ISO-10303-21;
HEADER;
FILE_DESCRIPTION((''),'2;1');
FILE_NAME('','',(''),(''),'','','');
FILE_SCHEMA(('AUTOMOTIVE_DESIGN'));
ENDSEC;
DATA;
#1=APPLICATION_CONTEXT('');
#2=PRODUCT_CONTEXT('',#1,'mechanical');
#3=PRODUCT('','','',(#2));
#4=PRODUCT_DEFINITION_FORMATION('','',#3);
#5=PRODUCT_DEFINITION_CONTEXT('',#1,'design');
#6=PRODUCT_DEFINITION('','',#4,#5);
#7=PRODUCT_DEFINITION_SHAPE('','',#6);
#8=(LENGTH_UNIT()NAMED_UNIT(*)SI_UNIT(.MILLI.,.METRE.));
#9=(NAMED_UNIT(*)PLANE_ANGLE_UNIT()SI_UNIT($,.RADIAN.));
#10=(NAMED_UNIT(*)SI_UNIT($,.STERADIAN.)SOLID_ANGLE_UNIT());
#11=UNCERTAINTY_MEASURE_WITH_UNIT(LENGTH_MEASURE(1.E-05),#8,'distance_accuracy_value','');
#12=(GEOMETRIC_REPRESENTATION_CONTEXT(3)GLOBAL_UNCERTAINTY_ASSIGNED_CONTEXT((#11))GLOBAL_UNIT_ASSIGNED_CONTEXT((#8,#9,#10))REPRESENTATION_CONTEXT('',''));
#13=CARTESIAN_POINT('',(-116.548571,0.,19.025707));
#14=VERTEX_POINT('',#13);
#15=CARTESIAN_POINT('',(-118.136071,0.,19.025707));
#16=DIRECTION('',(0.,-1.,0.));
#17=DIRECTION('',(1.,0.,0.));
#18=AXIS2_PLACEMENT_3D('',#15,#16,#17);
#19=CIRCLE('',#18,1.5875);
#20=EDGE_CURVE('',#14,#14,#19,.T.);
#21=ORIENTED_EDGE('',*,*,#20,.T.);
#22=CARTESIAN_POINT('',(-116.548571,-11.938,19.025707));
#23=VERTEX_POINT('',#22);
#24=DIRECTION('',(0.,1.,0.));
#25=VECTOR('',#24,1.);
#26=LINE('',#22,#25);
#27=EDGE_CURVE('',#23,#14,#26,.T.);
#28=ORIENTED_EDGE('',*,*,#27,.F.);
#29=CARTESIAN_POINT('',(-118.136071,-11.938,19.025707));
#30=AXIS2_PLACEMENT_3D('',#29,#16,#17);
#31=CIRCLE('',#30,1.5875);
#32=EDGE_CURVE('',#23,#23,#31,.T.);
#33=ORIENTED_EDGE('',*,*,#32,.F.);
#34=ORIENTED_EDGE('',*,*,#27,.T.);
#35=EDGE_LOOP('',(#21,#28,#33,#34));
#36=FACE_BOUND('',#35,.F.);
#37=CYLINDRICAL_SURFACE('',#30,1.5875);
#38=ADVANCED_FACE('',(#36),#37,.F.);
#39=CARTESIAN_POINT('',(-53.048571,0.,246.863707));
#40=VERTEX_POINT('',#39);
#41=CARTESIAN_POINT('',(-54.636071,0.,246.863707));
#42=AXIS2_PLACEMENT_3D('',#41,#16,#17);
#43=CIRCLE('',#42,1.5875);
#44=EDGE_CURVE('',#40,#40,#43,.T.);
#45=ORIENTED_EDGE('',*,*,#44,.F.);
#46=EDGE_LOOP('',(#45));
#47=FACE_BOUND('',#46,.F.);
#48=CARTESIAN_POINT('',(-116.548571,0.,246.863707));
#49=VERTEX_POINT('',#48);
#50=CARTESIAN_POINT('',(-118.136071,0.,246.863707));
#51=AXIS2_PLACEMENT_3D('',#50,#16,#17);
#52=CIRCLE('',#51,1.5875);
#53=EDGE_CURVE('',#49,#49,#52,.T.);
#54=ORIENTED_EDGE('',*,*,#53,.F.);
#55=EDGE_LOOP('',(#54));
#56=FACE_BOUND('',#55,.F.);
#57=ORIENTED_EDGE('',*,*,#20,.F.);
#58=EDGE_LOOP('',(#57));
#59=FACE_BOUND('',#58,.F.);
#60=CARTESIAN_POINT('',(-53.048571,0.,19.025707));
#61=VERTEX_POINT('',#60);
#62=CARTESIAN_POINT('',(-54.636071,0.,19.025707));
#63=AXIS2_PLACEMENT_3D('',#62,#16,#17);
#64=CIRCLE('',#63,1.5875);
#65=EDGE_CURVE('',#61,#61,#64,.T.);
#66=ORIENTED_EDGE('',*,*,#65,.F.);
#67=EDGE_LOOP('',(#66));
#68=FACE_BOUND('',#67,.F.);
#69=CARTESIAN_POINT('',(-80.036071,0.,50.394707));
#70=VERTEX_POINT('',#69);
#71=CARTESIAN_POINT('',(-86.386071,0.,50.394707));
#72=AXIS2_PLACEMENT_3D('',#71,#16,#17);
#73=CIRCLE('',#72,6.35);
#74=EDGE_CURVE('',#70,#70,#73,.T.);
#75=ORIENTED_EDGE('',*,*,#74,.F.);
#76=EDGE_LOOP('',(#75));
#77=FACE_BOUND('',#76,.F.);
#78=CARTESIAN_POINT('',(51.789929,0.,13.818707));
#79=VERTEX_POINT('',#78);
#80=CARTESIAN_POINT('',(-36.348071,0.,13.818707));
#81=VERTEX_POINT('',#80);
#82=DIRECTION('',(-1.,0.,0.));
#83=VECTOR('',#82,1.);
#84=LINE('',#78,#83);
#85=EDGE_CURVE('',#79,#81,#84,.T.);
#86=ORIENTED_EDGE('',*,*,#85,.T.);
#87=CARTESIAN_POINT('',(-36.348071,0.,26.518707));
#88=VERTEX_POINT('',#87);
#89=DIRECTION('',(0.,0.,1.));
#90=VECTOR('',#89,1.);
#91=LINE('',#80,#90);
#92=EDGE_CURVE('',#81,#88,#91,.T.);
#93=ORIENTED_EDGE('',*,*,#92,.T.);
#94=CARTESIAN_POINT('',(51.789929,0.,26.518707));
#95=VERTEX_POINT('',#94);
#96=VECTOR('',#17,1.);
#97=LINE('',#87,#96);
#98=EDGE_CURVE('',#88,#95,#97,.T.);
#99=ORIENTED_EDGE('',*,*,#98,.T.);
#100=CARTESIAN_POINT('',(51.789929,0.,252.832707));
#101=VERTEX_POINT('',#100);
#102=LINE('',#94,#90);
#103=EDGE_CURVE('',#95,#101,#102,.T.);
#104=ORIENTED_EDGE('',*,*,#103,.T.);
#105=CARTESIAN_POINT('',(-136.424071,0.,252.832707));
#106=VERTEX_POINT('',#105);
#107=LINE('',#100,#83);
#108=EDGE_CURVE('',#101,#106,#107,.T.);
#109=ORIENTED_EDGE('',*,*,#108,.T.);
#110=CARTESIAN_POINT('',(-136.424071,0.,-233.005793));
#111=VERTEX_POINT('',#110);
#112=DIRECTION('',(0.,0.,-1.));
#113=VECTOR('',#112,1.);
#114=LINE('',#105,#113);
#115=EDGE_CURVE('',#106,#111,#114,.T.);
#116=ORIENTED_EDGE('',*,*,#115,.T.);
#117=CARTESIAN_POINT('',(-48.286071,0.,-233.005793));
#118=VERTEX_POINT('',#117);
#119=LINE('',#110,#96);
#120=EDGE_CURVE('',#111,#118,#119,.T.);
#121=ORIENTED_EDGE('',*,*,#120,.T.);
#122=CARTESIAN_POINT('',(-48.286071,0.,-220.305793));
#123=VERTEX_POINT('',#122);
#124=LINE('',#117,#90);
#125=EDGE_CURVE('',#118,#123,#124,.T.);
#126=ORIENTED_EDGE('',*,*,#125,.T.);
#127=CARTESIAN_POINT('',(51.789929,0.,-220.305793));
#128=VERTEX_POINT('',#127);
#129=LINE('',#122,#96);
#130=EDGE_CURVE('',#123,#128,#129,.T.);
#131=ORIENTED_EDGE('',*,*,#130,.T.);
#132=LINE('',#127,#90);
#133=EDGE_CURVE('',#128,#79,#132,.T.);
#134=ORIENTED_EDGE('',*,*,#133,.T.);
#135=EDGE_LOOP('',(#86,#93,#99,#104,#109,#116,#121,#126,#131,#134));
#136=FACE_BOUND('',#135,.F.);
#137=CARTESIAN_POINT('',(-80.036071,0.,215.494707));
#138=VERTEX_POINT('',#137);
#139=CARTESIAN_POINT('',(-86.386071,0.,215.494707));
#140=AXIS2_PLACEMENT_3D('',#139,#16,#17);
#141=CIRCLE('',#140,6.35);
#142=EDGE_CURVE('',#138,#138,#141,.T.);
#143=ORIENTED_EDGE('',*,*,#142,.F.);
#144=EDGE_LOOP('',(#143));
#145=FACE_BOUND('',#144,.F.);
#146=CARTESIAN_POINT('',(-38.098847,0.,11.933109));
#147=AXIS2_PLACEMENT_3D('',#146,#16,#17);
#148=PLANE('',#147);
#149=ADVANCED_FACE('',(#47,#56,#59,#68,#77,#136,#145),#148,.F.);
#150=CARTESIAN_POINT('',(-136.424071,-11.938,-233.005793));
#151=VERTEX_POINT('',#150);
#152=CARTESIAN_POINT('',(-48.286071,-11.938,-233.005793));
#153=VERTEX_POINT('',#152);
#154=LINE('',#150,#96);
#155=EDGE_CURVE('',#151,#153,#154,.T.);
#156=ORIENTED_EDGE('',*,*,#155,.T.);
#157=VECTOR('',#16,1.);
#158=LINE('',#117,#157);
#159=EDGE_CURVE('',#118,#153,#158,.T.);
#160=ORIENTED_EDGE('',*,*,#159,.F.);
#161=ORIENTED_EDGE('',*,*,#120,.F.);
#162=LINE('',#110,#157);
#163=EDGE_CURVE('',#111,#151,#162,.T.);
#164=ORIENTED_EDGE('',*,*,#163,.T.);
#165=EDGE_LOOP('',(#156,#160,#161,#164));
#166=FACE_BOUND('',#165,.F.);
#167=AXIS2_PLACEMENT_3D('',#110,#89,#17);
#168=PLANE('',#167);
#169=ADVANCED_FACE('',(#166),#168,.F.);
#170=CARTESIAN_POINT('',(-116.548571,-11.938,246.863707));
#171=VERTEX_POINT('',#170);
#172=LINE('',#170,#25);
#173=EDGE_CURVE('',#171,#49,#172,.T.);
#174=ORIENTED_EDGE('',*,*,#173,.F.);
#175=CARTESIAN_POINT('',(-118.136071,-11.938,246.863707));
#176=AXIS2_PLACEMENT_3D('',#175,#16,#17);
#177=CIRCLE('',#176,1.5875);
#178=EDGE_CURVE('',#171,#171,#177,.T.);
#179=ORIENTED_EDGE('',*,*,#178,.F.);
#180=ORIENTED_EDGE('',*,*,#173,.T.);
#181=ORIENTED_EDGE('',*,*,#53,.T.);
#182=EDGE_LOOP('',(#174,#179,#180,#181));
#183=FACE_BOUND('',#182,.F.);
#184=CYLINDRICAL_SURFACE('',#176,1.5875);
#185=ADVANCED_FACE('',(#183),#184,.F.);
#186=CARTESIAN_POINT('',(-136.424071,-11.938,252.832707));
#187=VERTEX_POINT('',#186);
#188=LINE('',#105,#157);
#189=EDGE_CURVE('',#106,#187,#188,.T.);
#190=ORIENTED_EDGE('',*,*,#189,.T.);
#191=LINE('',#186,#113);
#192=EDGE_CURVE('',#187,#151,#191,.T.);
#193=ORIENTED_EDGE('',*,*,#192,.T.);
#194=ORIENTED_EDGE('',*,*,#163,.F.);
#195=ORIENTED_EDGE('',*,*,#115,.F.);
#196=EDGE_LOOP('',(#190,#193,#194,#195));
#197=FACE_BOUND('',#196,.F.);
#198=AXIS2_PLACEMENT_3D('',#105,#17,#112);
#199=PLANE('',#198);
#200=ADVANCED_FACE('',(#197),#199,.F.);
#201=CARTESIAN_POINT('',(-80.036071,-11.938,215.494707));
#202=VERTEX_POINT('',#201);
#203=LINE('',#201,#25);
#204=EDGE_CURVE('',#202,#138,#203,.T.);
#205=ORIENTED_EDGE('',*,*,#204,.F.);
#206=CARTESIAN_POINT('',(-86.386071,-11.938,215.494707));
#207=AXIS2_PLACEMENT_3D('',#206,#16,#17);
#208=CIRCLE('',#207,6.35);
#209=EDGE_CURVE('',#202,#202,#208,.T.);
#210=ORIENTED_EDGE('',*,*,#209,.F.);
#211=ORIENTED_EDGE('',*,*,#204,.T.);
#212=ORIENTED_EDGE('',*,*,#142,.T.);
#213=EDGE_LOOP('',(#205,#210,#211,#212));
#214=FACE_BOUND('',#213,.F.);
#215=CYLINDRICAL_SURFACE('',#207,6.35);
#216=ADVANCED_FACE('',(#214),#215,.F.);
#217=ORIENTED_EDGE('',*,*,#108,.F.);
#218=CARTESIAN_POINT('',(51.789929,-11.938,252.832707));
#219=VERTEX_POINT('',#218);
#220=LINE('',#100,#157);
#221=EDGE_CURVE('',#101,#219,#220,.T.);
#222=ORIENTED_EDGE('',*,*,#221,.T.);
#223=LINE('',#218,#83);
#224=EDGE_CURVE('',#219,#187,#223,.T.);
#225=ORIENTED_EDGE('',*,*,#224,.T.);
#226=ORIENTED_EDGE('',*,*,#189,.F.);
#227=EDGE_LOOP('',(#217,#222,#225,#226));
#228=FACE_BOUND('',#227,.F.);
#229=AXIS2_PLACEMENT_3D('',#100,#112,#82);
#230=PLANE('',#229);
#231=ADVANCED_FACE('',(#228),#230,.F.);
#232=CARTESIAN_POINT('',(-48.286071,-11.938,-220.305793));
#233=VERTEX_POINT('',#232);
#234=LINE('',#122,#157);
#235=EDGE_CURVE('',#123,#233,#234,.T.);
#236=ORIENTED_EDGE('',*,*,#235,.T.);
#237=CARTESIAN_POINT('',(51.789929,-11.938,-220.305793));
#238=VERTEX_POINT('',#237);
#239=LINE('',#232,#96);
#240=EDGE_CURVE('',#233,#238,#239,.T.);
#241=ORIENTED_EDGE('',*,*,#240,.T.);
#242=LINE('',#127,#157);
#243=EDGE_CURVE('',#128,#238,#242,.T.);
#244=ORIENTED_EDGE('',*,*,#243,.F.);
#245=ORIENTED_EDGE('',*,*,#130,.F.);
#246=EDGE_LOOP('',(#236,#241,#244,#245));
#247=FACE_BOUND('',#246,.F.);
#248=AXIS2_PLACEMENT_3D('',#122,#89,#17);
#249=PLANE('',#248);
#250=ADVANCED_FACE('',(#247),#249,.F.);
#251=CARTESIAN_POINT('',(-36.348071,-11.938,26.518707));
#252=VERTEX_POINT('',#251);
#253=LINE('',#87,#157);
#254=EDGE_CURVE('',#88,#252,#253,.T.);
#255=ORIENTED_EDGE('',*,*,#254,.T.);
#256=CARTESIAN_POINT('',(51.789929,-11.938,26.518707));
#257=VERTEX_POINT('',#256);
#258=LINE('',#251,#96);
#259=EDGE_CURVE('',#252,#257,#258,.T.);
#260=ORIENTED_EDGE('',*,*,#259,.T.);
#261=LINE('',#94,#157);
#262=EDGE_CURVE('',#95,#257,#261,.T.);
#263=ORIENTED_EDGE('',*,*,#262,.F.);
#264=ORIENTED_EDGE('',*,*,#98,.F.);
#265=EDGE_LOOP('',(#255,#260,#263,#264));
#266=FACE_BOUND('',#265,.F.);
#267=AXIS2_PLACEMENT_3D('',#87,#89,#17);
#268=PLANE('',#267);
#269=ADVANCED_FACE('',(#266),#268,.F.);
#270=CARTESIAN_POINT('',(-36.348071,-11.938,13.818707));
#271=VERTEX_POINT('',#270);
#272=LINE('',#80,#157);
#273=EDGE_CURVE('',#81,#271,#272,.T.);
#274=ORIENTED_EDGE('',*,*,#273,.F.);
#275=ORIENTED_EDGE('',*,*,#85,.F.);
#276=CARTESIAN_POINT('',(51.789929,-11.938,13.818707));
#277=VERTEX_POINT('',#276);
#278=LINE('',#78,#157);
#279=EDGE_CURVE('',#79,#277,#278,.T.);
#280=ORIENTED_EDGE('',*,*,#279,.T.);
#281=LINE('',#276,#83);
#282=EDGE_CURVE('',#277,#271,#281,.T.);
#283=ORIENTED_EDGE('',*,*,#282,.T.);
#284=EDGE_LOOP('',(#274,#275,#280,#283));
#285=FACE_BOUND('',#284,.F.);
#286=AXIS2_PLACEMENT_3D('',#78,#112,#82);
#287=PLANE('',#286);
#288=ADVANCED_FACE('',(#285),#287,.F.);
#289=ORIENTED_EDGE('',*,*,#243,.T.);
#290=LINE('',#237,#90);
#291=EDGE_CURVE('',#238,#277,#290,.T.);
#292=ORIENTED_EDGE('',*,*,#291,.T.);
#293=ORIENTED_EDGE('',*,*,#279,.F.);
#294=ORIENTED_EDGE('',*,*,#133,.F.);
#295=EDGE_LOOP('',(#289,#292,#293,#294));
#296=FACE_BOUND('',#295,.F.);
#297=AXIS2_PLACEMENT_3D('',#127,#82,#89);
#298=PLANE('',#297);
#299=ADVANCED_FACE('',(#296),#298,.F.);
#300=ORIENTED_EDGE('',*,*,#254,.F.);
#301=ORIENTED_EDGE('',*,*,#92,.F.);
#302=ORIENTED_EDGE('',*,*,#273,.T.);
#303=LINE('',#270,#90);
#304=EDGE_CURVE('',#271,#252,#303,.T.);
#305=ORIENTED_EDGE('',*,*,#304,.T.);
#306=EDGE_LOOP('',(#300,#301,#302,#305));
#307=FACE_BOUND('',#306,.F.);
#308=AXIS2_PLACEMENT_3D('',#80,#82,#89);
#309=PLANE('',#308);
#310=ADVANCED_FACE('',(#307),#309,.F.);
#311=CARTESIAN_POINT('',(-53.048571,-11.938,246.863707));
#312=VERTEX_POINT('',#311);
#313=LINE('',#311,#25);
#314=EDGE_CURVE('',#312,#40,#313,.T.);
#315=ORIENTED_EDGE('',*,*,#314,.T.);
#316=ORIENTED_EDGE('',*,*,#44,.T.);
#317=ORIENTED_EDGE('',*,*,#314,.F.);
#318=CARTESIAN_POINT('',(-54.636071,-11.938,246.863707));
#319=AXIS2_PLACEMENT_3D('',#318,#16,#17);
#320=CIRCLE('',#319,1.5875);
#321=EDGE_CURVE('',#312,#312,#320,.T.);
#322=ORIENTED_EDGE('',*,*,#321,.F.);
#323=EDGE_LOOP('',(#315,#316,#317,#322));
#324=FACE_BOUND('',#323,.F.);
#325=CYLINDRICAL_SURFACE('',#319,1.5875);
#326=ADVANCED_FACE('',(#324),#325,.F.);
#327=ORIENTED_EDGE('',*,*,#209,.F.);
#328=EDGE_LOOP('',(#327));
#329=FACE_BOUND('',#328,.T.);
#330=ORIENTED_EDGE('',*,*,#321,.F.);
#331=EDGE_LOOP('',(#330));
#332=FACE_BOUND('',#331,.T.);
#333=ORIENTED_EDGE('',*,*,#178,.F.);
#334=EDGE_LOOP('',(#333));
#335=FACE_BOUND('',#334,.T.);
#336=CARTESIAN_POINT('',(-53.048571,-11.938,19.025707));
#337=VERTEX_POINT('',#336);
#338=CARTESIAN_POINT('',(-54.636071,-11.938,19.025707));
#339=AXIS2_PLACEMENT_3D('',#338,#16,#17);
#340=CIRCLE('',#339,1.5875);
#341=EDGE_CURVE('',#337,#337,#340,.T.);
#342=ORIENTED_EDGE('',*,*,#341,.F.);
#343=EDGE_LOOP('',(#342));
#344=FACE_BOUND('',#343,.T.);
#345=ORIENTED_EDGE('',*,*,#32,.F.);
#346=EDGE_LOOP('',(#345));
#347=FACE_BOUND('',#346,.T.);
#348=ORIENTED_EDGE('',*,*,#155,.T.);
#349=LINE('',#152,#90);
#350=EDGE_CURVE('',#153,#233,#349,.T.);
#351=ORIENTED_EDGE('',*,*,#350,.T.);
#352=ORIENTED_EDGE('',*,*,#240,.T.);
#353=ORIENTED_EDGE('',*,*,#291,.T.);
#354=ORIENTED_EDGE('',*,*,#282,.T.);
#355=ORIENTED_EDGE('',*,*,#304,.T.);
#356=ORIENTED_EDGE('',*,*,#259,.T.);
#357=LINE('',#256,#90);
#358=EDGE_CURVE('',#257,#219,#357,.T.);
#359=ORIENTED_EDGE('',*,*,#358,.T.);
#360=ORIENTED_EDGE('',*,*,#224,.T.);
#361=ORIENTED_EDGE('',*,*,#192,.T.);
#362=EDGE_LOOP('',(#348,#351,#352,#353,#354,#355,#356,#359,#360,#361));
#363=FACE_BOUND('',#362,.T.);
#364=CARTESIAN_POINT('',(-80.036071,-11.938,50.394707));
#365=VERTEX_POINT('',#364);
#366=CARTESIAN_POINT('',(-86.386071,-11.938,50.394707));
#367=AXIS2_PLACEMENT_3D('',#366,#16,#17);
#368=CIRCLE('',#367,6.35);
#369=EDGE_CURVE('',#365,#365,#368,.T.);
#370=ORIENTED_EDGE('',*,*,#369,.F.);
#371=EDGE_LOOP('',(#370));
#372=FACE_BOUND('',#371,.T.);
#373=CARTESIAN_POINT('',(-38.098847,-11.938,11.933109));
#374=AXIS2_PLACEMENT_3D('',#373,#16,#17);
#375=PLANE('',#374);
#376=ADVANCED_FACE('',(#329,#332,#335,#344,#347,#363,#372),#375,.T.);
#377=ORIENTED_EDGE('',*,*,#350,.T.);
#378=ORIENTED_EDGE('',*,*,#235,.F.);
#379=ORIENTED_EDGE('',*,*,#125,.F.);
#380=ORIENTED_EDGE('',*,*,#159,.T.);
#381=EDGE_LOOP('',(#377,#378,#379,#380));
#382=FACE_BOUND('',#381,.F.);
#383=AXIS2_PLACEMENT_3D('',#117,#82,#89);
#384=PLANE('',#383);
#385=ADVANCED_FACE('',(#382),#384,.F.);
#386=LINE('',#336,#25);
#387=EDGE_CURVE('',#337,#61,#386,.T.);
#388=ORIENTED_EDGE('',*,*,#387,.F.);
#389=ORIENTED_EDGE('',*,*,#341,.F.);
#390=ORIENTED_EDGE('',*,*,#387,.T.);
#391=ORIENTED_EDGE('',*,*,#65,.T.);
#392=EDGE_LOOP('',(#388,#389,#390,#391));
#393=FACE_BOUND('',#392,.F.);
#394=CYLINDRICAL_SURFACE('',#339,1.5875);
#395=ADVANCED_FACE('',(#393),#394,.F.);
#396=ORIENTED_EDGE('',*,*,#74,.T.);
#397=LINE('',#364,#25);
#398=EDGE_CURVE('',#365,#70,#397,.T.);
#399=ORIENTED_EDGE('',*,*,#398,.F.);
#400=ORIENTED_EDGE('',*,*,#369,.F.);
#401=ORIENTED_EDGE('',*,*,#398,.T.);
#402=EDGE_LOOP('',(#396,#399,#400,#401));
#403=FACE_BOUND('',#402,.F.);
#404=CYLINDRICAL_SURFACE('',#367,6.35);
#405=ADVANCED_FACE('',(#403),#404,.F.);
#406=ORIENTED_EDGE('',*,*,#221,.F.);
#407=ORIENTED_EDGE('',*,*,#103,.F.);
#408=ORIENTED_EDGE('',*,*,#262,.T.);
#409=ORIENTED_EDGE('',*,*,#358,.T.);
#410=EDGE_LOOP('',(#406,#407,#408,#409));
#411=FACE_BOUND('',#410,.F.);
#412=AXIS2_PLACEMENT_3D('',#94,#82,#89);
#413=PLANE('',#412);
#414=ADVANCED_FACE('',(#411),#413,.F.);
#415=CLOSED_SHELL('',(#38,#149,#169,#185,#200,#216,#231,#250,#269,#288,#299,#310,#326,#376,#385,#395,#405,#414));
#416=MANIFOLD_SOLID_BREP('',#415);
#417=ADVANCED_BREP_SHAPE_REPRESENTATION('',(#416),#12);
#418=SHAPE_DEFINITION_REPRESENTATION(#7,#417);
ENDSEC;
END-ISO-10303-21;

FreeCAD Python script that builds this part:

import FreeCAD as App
import Part
import Sketcher
from FreeCAD import Vector
Q = App.Units.Quantity


def add_polygon(sketch, points):
    """Adds a closed chain of lines whose ends are joined by coincident constraints."""
    first, n = sketch.GeometryCount, len(points)
    for a, b in zip(points, points[1:] + points[:1]):
        sketch.addGeometry(Part.LineSegment(App.Vector(*a, 0), App.Vector(*b, 0)), False)
    for i in range(n):
        sketch.addConstraint(Sketcher.Constraint("Coincident", first + i, 2, first + (i + 1) % n, 1))

doc = App.newDocument("Part")
body = doc.addObject("PartDesign::Body", "Body")

# Sketch on XZ plane
sketch1 = body.newObject("Sketcher::SketchObject", "Sketch")
sketch1.AttachmentSupport = (doc.getObject("XZ_Plane"), [""])
sketch1.MapMode = "FlatFace"
add_polygon(sketch1, [(-136, 253), (-136, -233), (-48, -233), (-48, -220), (52, -220), (52, 14), (-36, 14), (-36, 27), (52, 27), (52, 253)])  # lines 0-9
sketch1.addConstraint([
    Sketcher.Constraint("Vertical", 0),
    Sketcher.Constraint("Horizontal", 1),
    Sketcher.Constraint("Vertical", 2),
    Sketcher.Constraint("Horizontal", 3),
    Sketcher.Constraint("Vertical", 4),
    Sketcher.Constraint("Horizontal", 5),
    Sketcher.Constraint("Vertical", 6),
    Sketcher.Constraint("Horizontal", 7),
    Sketcher.Constraint("Vertical", 8),
    Sketcher.Constraint("Horizontal", 9),
    Sketcher.Constraint("Vertical", 4, 2, 7, 2),
    Sketcher.Constraint("Equal", 1, 5),
    Sketcher.Constraint("Equal", 2, 6),
    Sketcher.Constraint("DistanceY", 2, 1, 2, 2, Q("0.5 in")),
    Sketcher.Constraint("DistanceX", 1, 1, 1, 2, Q("3.47 in")),
    Sketcher.Constraint("DistanceX", 3, 1, 3, 2, Q("3.94 in")),
    Sketcher.Constraint("DistanceY", 8, 1, 8, 2, Q("8.91 in")),
    Sketcher.Constraint("DistanceY", 0, 2, 0, 1, Q("19.1275 in")),
    Sketcher.Constraint("DistanceX", 0, 2, -1, 1, 136.424071),
    Sketcher.Constraint("DistanceY", 0, 2, -1, 1, 233.005793),
])
pad1 = body.newObject("PartDesign::Pad", "Pad")
pad1.Profile = sketch1
pad1.Length = Q("0.47 in")

# Sketch on XZ plane
sketch2 = body.newObject("Sketcher::SketchObject", "Sketch001")
sketch2.AttachmentSupport = (doc.getObject("XZ_Plane"), [""])
sketch2.MapMode = "FlatFace"
sketch2.AttachmentOffset = App.Placement(Vector(0, 0, 0.47 * 25.4), App.Rotation())
sketch2.addGeometry([
    Part.Circle(Vector(-86.4, 215.5, 0), Vector(0, 0, 1), 6.3),  # 0
    Part.Circle(Vector(-86.4, 50.4, 0), Vector(0, 0, 1), 6.3),  # 1
    Part.Circle(Vector(-118.1, 246.9, 0), Vector(0, 0, 1), 1.6),  # 2
    Part.Circle(Vector(-54.6, 246.9, 0), Vector(0, 0, 1), 1.6),  # 3
    Part.Circle(Vector(-118.1, 19, 0), Vector(0, 0, 1), 1.6),  # 4
    Part.Circle(Vector(-54.6, 19, 0), Vector(0, 0, 1), 1.6),  # 5
], False)
sketch2.addConstraint([
    Sketcher.Constraint("Equal", 0, 1),
    Sketcher.Constraint("Equal", 2, 3),
    Sketcher.Constraint("Equal", 3, 4),
    Sketcher.Constraint("Equal", 4, 5),
    Sketcher.Constraint("Horizontal", 2, 3, 3, 3),
    Sketcher.Constraint("Horizontal", 4, 3, 5, 3),
    Sketcher.Constraint("Vertical", 0, 3, 1, 3),
    Sketcher.Constraint("Vertical", 2, 3, 4, 3),
    Sketcher.Constraint("Vertical", 3, 3, 5, 3),
    Sketcher.Constraint("Diameter", 0, Q("0.5 in")),
    Sketcher.Constraint("Diameter", 2, Q("0.125 in")),
    Sketcher.Constraint("DistanceY", 1, 3, 0, 3, Q("6.5 in")),
    Sketcher.Constraint("DistanceX", 2, 3, 3, 3, Q("2.5 in")),
    Sketcher.Constraint("DistanceX", 2, 3, 0, 3, Q("1.25 in")),
    Sketcher.Constraint("DistanceY", 4, 3, 2, 3, Q("8.97 in")),
    Sketcher.Constraint("DistanceY", 0, 3, 2, 3, Q("1.235 in")),
    Sketcher.Constraint("DistanceX", 0, 3, -1, 1, 86.386071),
    Sketcher.Constraint("DistanceY", -1, 1, 0, 3, 215.494707),
])
pocket1 = body.newObject("PartDesign::Pocket", "Pocket")
pocket1.Profile = sketch2
pocket1.Type = "ThroughAll"

doc.recompute()
